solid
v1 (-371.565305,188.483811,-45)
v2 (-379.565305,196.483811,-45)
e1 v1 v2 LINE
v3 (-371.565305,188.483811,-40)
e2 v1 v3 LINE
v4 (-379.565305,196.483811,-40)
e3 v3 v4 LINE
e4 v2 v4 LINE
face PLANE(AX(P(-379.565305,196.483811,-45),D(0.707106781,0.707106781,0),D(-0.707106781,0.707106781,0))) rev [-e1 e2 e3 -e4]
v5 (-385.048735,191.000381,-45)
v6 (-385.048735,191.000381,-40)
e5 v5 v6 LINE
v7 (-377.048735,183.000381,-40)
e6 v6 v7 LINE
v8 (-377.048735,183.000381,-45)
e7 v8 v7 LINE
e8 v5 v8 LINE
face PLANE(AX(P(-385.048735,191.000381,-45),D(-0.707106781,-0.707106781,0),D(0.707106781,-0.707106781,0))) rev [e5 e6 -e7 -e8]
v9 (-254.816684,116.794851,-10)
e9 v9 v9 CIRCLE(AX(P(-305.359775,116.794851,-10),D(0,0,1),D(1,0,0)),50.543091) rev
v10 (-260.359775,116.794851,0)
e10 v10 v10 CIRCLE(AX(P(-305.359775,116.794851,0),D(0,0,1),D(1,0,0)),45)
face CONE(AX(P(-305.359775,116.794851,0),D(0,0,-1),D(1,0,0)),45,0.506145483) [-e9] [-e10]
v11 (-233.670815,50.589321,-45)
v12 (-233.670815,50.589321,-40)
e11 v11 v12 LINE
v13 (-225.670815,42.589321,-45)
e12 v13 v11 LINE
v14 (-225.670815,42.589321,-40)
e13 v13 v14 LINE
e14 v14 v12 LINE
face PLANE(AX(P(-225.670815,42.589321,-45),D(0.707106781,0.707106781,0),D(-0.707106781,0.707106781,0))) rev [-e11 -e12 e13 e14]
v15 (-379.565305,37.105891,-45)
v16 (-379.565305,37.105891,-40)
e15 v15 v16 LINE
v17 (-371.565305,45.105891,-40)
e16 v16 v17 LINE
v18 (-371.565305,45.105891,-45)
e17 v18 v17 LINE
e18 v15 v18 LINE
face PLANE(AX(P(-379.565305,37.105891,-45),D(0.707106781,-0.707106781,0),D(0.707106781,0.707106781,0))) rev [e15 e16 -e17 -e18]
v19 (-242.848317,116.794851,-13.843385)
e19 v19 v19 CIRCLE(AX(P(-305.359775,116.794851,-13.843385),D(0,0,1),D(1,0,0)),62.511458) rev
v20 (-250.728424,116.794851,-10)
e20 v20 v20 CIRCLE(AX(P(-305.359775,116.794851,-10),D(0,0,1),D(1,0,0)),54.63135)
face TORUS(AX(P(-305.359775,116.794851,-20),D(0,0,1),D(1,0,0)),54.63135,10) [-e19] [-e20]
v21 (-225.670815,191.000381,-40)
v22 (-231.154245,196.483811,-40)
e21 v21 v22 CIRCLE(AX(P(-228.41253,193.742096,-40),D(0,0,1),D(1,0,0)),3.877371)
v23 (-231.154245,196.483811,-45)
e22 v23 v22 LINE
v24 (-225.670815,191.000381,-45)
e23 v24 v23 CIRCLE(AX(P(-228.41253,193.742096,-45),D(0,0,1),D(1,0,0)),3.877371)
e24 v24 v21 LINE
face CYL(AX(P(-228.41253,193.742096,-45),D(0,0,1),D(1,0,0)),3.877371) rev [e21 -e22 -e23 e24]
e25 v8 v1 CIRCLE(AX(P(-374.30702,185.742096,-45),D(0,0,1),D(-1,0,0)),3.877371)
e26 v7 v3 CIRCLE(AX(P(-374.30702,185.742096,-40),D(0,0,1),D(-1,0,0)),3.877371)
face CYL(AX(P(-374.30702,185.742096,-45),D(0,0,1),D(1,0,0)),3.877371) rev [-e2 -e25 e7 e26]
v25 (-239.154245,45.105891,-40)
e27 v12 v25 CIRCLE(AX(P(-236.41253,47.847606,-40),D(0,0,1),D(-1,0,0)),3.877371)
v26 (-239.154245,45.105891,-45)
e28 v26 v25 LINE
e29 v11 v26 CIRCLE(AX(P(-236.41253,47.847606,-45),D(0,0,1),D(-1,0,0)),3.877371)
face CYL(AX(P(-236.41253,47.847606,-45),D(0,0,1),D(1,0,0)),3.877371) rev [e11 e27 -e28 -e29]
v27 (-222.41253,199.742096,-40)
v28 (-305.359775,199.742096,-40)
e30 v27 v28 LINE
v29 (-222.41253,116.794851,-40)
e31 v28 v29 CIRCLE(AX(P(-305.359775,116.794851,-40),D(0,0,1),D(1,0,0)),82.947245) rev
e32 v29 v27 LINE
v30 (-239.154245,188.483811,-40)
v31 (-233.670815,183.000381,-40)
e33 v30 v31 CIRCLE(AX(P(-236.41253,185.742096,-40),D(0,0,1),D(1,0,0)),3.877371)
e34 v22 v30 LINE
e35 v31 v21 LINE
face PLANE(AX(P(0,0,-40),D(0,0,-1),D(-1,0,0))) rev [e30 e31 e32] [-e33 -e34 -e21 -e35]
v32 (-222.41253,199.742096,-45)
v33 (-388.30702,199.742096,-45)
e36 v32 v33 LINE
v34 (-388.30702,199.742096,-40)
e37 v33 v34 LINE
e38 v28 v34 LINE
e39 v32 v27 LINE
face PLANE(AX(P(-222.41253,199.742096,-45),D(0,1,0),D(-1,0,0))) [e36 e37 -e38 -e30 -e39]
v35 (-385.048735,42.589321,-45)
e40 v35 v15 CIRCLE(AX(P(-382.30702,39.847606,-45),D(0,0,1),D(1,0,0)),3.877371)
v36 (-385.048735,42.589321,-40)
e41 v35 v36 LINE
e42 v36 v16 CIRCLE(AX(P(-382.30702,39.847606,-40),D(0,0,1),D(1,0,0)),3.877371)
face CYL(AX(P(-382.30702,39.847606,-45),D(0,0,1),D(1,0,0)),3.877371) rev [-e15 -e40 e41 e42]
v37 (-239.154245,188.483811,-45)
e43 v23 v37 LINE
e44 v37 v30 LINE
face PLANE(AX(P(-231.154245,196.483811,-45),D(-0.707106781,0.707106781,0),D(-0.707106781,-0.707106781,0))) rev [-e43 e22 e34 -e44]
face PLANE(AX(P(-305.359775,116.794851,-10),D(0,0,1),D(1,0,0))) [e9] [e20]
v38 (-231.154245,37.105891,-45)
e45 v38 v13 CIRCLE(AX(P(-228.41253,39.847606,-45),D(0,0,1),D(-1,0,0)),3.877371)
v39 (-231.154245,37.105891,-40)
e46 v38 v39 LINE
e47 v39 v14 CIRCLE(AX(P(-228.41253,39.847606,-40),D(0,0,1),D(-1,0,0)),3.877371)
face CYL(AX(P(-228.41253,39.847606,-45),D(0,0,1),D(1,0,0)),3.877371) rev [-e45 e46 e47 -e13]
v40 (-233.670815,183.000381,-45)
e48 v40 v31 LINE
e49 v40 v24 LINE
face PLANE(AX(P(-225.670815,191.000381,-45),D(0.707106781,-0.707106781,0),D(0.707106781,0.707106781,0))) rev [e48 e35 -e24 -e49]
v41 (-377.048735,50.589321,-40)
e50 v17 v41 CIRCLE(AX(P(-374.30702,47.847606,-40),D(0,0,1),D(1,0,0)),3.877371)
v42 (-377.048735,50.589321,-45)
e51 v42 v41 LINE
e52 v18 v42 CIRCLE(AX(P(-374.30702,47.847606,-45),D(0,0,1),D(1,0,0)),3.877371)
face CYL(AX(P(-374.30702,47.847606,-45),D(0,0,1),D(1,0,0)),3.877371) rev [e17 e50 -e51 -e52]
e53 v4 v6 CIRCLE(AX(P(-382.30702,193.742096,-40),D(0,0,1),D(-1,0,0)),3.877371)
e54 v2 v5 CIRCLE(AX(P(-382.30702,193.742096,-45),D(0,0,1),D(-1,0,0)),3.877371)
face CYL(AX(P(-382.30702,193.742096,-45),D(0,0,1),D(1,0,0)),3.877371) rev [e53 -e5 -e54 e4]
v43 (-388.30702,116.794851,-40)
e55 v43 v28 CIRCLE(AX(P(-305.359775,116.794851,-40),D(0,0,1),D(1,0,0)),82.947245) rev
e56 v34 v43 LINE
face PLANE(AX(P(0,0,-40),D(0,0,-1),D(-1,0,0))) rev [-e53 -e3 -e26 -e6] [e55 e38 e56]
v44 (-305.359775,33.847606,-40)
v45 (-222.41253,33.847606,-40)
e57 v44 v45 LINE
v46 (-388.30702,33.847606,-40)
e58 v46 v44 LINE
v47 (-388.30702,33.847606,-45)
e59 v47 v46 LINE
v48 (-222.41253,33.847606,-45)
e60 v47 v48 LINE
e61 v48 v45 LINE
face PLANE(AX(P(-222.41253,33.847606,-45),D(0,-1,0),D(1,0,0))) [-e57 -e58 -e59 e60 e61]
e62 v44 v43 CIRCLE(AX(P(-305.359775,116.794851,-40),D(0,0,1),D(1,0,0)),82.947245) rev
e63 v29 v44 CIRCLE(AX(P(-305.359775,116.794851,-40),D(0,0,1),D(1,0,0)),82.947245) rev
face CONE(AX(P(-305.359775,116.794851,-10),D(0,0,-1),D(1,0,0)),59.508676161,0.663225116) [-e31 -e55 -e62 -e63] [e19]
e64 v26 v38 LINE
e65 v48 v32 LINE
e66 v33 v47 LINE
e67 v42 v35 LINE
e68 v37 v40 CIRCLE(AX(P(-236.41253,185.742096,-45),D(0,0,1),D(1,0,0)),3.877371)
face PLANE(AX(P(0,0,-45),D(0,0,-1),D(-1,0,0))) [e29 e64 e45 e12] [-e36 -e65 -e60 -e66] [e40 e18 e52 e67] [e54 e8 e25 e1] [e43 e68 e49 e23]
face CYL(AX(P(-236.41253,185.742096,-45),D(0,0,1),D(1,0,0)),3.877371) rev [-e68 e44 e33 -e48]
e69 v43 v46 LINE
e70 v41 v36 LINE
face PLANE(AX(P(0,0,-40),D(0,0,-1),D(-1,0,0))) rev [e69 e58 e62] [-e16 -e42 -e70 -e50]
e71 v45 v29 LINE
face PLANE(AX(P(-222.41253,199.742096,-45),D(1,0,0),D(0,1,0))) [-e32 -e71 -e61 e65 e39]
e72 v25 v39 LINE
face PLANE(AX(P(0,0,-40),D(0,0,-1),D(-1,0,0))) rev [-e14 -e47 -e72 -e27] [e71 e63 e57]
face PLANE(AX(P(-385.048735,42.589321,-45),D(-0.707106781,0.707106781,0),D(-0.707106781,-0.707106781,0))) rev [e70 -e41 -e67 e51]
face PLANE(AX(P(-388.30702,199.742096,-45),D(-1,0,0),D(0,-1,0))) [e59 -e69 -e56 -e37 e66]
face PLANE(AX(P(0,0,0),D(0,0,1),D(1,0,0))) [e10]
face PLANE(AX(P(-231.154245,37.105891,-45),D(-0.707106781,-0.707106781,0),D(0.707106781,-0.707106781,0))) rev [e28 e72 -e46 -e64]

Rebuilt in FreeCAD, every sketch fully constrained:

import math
import FreeCAD as App
import Part
import Sketcher


def edges_at(feature, points):
    """Names of the edges that pass closest to the given points."""
    edges = feature.Shape.Edges
    near = lambda p: min(range(len(edges)), key=lambda i: edges[i].distToShape(Part.Vertex(*p))[0])
    return sorted({f"Edge{near(p) + 1}" for p in points})


def faces_at(feature, points):
    """Names of the faces that lie closest to the given points."""
    faces = feature.Shape.Faces
    near = lambda p: min(range(len(faces)), key=lambda i: faces[i].distToShape(Part.Vertex(*p))[0])
    return sorted({f"Face{near(p) + 1}" for p in points})


def add_polygon(sketch, points):
    """Adds a closed chain of lines whose ends are joined by coincident constraints."""
    first, n = sketch.GeometryCount, len(points)
    for a, b in zip(points, points[1:] + points[:1]):
        sketch.addGeometry(Part.LineSegment(App.Vector(*a, 0), App.Vector(*b, 0)), False)
    for i in range(n):
        sketch.addConstraint(Sketcher.Constraint("Coincident", first + i, 2, first + (i + 1) % n, 1))

doc = App.newDocument("Part")
body = doc.addObject("PartDesign::Body", "Body")

# Sketch on XY plane
sketch1 = body.newObject("Sketcher::SketchObject", "Sketch")
sketch1.AttachmentSupport = (doc.getObject("XY_Plane"), [""])
sketch1.MapMode = "FlatFace"
sketch1.addGeometry(Part.Circle(App.Vector(-305, 117, 0), App.Vector(0, 0, 1), 45), False)
sketch1.addConstraint([
    Sketcher.Constraint("Diameter", 0, 90.0),
    Sketcher.Constraint("DistanceY", -1, 1, 0, 3, 116.794851),
    Sketcher.Constraint("DistanceX", 0, 3, -1, 1, 305.359775),
])
pad1 = body.newObject("PartDesign::Pad", "Pad")
pad1.Profile = sketch1
pad1.Length = 10
pad1.Reversed = True
doc.recompute()

draft = body.newObject("PartDesign::Draft", "Draft")
draft.Base = (pad1, faces_at(pad1, [(-350.36, 116.795, -5)]))
draft.NeutralPlane = (doc.getObject("XY_Plane"), [""])
draft.Angle = 29
draft.Reversed = False
body2 = doc.addObject("PartDesign::Body", "Body001")

# Sketch on XY plane
sketch2 = body2.newObject("Sketcher::SketchObject", "Sketch001")
sketch2.AttachmentSupport = (doc.getObject("XY_Plane001"), [""])
sketch2.MapMode = "FlatFace"
sketch2.AttachmentOffset = App.Placement(App.Vector(0, 0, -10), App.Rotation())
sketch2.addGeometry(Part.Circle(App.Vector(-305, 117, 0), App.Vector(0, 0, 1), 60), False)
sketch2.addConstraint([
    Sketcher.Constraint("Diameter", 0, 119.017352),
    Sketcher.Constraint("DistanceY", -1, 1, 0, 3, 116.794851),
    Sketcher.Constraint("DistanceX", 0, 3, -1, 1, 305.359775),
])
pad2 = body2.newObject("PartDesign::Pad", "Pad001")
pad2.Profile = sketch2
pad2.Length = 30
pad2.Reversed = True
doc.recompute()

datumplane = body2.newObject("PartDesign::Plane", "DatumPlane")
datumplane.AttachmentSupport = (doc.getObject("XY_Plane001"), [""])
datumplane.MapMode = "FlatFace"
datumplane.AttachmentOffset = App.Placement(App.Vector(0, 0, -10), App.Rotation())
draft2 = body2.newObject("PartDesign::Draft", "Draft001")
draft2.Base = (pad2, faces_at(pad2, [(-364.868, 116.795, -25)]))
draft2.NeutralPlane = (datumplane, [""])
draft2.Angle = 38
draft2.Reversed = False
doc.recompute()

boolean = body.newObject("PartDesign::Boolean", "Boolean")
boolean.Type = "Fuse"
boolean.addObjects([body2])
doc.recompute()

fillet = body.newObject("PartDesign::Fillet", "Fillet")
fillet.Base = (boolean, edges_at(boolean, [(-364.868, 116.795, -10)]))
fillet.Radius = 10

# Sketch on XY plane
sketch3 = body.newObject("Sketcher::SketchObject", "Sketch002")
sketch3.AttachmentSupport = (doc.getObject("XY_Plane"), [""])
sketch3.MapMode = "FlatFace"
sketch3.AttachmentOffset = App.Placement(App.Vector(0, 0, -40), App.Rotation())
add_polygon(sketch3, [(-388.3, 199.7), (-388.3, 33.8), (-222.4, 33.8), (-222.4, 199.7)])  # lines 0-3
sketch3.addGeometry(Part.ArcOfCircle(Part.Circle(App.Vector(-382.3, 39.8, 0), App.Vector(0, 0, 1), 3.9), math.radians(135), math.radians(315)), False)  # 4
sketch3.addGeometry(Part.LineSegment(App.Vector(-385, 42.6, 0), App.Vector(-377, 50.6, 0)), False)  # 5
sketch3.addGeometry(Part.ArcOfCircle(Part.Circle(App.Vector(-374.3, 47.8, 0), App.Vector(0, 0, 1), 3.9), math.radians(-45), math.radians(135)), False)  # 6
sketch3.addGeometry(Part.LineSegment(App.Vector(-371.6, 45.1, 0), App.Vector(-379.6, 37.1, 0)), False)  # 7
sketch3.addGeometry(Part.LineSegment(App.Vector(-233.7, 50.6, 0), App.Vector(-225.7, 42.6, 0)), False)  # 8
sketch3.addGeometry(Part.ArcOfCircle(Part.Circle(App.Vector(-228.4, 39.8, 0), App.Vector(0, 0, 1), 3.9), math.radians(-135), math.radians(45)), False)  # 9
sketch3.addGeometry(Part.LineSegment(App.Vector(-231.2, 37.1, 0), App.Vector(-239.2, 45.1, 0)), False)  # 10
sketch3.addGeometry(Part.ArcOfCircle(Part.Circle(App.Vector(-236.4, 47.8, 0), App.Vector(0, 0, 1), 3.9), math.radians(45), math.radians(225)), False)  # 11
sketch3.addGeometry(Part.LineSegment(App.Vector(-377, 183, 0), App.Vector(-385, 191, 0)), False)  # 12
sketch3.addGeometry(Part.ArcOfCircle(Part.Circle(App.Vector(-382.3, 193.7, 0), App.Vector(0, 0, 1), 3.9), math.radians(45), math.radians(225)), False)  # 13
sketch3.addGeometry(Part.LineSegment(App.Vector(-379.6, 196.5, 0), App.Vector(-371.6, 188.5, 0)), False)  # 14
sketch3.addGeometry(Part.ArcOfCircle(Part.Circle(App.Vector(-374.3, 185.7, 0), App.Vector(0, 0, 1), 3.9), math.radians(-135), math.radians(45)), False)  # 15
sketch3.addGeometry(Part.ArcOfCircle(Part.Circle(App.Vector(-228.4, 193.7, 0), App.Vector(0, 0, 1), 3.9), math.radians(-45), math.radians(135)), False)  # 16
sketch3.addGeometry(Part.LineSegment(App.Vector(-225.7, 191, 0), App.Vector(-233.7, 183, 0)), False)  # 17
sketch3.addGeometry(Part.ArcOfCircle(Part.Circle(App.Vector(-236.4, 185.7, 0), App.Vector(0, 0, 1), 3.9), math.radians(135), math.radians(315)), False)  # 18
sketch3.addGeometry(Part.LineSegment(App.Vector(-239.2, 188.5, 0), App.Vector(-231.2, 196.5, 0)), False)  # 19
sketch3.addConstraint([
    Sketcher.Constraint("Tangent", 4, 1, 5, 1),
    Sketcher.Constraint("Tangent", 5, 2, 6, 2),
    Sketcher.Constraint("Tangent", 6, 1, 7, 1),
    Sketcher.Constraint("Tangent", 7, 2, 4, 2),
    Sketcher.Constraint("Tangent", 8, 2, 9, 2),
    Sketcher.Constraint("Tangent", 9, 1, 10, 1),
    Sketcher.Constraint("Tangent", 10, 2, 11, 2),
    Sketcher.Constraint("Tangent", 11, 1, 8, 1),
    Sketcher.Constraint("Tangent", 12, 2, 13, 2),
    Sketcher.Constraint("Tangent", 13, 1, 14, 1),
    Sketcher.Constraint("Tangent", 14, 2, 15, 2),
    Sketcher.Constraint("Tangent", 15, 1, 12, 1),
    Sketcher.Constraint("Tangent", 16, 1, 17, 1),
    Sketcher.Constraint("Tangent", 17, 2, 18, 2),
    Sketcher.Constraint("Tangent", 18, 1, 19, 1),
    Sketcher.Constraint("Tangent", 19, 2, 16, 2),
    Sketcher.Constraint("Vertical", 0),
    Sketcher.Constraint("Horizontal", 1),
    Sketcher.Constraint("Vertical", 2),
    Sketcher.Constraint("Horizontal", 3),
    Sketcher.Constraint("Equal", 4, 6),
    Sketcher.Constraint("Equal", 6, 9),
    Sketcher.Constraint("Equal", 9, 11),
    Sketcher.Constraint("Equal", 11, 13),
    Sketcher.Constraint("Equal", 13, 15),
    Sketcher.Constraint("Equal", 15, 16),
    Sketcher.Constraint("Equal", 16, 18),
    Sketcher.Constraint("Perpendicular", 7, 8),
    Sketcher.Constraint("Parallel", 10, 12),
    Sketcher.Constraint("Perpendicular", 14, 17),
    Sketcher.Constraint("Horizontal", 4, 3, 9, 3),
    Sketcher.Constraint("Horizontal", 6, 3, 11, 3),
    Sketcher.Constraint("Horizontal", 13, 3, 16, 3),
    Sketcher.Constraint("Horizontal", 15, 3, 18, 3),
    Sketcher.Constraint("Horizontal", 4, 1, 8, 2),
    Sketcher.Constraint("Vertical", 4, 3, 13, 3),
    Sketcher.Constraint("Vertical", 6, 3, 15, 3),
    Sketcher.Constraint("Vertical", 9, 3, 16, 3),
    Sketcher.Constraint("Equal", 3, 0),
    Sketcher.Constraint("DistanceX", 4, 3, 6, 3, 8.0),
    Sketcher.Constraint("DistanceX", 0, 2, 4, 3, 6.0),
    Sketcher.Constraint("DistanceY", 0, 2, 4, 3, 6.0),
    Sketcher.Constraint("DistanceX", 9, 3, 1, 2, 6.0),
    Sketcher.Constraint("DistanceY", 16, 3, 2, 2, 6.0),
    Sketcher.Constraint("Radius", 4, 3.877371),
    Sketcher.Constraint("DistanceX", 1, 1, 1, 2, 165.89449),
    Sketcher.Constraint("DistanceX", 4, 3, -1, 1, 382.30702),
    Sketcher.Constraint("DistanceY", -1, 1, 4, 1, 42.589321),
])
pad3 = body.newObject("PartDesign::Pad", "Pad002")
pad3.Profile = sketch3
pad3.Length = 5
pad3.Reversed = True

doc.recompute()
